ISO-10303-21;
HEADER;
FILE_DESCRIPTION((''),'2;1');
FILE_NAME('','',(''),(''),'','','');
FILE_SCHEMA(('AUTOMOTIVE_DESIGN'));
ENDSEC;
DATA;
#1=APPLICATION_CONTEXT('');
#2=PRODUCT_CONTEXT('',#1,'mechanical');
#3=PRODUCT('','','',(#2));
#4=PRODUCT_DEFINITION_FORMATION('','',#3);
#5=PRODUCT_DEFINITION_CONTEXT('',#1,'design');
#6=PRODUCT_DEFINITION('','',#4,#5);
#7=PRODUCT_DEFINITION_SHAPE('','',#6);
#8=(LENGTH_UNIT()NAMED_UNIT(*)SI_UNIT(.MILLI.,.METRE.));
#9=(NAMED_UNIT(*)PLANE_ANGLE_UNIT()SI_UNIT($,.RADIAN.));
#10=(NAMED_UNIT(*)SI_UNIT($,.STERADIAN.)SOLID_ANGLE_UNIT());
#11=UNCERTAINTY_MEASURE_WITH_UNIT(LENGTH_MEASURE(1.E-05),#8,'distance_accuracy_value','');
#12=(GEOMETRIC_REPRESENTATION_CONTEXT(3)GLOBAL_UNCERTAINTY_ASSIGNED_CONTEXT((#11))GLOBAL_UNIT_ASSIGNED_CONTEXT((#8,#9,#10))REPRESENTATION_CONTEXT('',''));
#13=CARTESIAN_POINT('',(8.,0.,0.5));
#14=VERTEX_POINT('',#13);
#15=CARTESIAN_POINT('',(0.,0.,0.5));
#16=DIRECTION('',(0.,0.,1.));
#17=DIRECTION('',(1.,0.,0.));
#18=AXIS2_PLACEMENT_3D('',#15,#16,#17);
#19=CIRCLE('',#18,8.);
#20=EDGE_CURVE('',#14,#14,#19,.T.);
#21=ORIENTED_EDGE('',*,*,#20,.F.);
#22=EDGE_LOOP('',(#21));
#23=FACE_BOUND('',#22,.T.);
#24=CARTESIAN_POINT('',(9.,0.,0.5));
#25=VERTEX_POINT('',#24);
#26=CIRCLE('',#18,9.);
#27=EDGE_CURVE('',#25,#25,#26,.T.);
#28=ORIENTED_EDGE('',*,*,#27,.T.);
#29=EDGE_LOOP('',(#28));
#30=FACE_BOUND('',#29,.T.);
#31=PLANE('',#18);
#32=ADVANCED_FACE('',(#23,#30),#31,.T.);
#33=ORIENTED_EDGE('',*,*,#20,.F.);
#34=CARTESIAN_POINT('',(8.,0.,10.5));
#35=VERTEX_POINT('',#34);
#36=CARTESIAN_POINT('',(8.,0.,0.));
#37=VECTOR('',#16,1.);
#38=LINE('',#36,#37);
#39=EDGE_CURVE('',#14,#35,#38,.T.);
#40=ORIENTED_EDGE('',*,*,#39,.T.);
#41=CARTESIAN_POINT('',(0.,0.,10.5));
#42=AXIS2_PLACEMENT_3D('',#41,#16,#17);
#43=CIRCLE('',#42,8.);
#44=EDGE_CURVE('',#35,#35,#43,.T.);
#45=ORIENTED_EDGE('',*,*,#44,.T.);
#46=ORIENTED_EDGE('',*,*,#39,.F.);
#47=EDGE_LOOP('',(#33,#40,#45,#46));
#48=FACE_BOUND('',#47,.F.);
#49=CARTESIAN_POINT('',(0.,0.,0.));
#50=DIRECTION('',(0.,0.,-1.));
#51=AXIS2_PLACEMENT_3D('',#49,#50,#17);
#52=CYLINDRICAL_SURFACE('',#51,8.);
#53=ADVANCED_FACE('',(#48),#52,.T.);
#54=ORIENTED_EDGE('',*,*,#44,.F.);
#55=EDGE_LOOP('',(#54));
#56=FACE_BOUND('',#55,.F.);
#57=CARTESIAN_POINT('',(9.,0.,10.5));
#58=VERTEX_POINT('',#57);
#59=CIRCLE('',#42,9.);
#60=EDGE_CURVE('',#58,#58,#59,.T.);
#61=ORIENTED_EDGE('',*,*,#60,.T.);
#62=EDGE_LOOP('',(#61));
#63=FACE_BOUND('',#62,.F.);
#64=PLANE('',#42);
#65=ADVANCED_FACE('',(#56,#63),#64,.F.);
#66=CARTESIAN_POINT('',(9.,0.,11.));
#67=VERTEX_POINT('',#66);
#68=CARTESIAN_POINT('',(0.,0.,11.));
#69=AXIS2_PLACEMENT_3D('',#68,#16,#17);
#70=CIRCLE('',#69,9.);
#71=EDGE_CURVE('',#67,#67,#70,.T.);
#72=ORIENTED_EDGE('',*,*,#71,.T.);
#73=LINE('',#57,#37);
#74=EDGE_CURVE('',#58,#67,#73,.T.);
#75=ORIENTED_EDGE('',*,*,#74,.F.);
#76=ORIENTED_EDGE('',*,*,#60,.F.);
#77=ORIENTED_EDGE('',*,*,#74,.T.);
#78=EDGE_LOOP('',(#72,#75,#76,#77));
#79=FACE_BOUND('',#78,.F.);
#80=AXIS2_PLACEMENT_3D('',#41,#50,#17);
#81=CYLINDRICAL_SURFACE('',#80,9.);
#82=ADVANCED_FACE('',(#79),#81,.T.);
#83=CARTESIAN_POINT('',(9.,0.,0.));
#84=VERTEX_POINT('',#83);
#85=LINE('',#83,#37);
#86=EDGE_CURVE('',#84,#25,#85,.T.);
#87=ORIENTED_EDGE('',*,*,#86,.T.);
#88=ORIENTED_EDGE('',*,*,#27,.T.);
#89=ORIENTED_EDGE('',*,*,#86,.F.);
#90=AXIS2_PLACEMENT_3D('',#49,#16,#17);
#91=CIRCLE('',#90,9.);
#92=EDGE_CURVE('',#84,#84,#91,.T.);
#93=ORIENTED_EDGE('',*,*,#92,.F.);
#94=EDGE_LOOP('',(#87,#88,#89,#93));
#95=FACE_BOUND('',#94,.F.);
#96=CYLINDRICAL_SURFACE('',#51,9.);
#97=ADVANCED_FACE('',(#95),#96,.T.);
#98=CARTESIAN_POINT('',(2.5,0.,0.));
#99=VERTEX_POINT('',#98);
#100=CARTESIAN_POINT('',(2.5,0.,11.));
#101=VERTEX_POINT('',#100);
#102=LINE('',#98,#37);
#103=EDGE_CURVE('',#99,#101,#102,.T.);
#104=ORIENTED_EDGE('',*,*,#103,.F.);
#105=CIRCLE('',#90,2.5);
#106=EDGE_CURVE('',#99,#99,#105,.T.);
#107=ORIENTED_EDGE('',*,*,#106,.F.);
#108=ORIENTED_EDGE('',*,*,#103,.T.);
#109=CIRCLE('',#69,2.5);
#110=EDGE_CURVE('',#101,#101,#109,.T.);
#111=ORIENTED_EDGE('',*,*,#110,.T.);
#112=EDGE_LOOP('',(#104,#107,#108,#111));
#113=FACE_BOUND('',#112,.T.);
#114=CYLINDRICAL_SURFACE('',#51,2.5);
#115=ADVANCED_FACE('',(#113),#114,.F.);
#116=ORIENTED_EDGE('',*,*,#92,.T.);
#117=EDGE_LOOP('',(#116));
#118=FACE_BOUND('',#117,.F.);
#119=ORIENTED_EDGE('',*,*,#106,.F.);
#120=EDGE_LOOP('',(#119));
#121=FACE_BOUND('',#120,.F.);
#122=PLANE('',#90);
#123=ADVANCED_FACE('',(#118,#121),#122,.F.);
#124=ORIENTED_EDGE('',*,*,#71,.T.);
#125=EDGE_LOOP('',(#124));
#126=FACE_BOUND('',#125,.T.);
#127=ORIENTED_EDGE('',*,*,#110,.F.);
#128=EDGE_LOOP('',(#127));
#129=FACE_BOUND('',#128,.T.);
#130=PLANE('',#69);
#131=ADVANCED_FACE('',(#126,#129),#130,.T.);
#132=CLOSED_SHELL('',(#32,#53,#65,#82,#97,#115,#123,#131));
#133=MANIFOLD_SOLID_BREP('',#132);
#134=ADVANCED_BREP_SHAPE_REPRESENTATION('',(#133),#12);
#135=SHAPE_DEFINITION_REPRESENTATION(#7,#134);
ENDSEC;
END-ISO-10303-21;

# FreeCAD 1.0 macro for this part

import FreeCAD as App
import Part
import Sketcher
Q = App.Units.Quantity

doc = App.newDocument("Part")
body = doc.addObject("PartDesign::Body", "Body")

sketch1 = body.newObject("Sketcher::SketchObject", "Sketch")
sketch1.AttachmentSupport = (doc.getObject("XY_Plane"), [""])
sketch1.MapMode = "FlatFace"
sketch1.addGeometry(Part.Circle(App.Vector(0, 0, 0), App.Vector(0, 0, 1), 8), False)
sketch1.addGeometry(Part.Circle(App.Vector(0, 0, 0), App.Vector(0, 0, 1), 2.5), False)
sketch1.addConstraint(Sketcher.Constraint("Coincident", 0, 3, -1, 1))
sketch1.addConstraint(Sketcher.Constraint("Coincident", 1, 3, -1, 1))
sketch1.addConstraint(Sketcher.Constraint("Diameter", 0, Q("16 mm")))
sketch1.addConstraint(Sketcher.Constraint("Diameter", 1, Q("5 mm")))
pad1 = body.newObject("PartDesign::Pad", "Pad")
pad1.Profile = sketch1
pad1.Length = 11

sketch2 = body.newObject("Sketcher::SketchObject", "Sketch001")
sketch2.AttachmentSupport = (doc.getObject("XY_Plane"), [""])
sketch2.MapMode = "FlatFace"
sketch2.addGeometry(Part.Circle(App.Vector(0, 0, 0), App.Vector(0, 0, 1), 9), False)
sketch2.addGeometry(Part.Circle(App.Vector(0, 0, 0), App.Vector(0, 0, 1), 8), False)
sketch2.addConstraint(Sketcher.Constraint("Coincident", 0, 3, -1, 1))
sketch2.addConstraint(Sketcher.Constraint("Coincident", 1, 3, -1, 1))
sketch2.addConstraint(Sketcher.Constraint("Diameter", 0, Q("18 mm")))
sketch2.addConstraint(Sketcher.Constraint("Diameter", 1, Q("16 mm")))
pad2 = body.newObject("PartDesign::Pad", "Pad001")
pad2.Profile = sketch2
pad2.Length = 0.5

sketch3 = body.newObject("Sketcher::SketchObject", "Sketch002")
sketch3.AttachmentSupport = (doc.getObject("XY_Plane"), [""])
sketch3.MapMode = "FlatFace"
sketch3.AttachmentOffset = App.Placement(App.Vector(0, 0, 10.5), App.Rotation())
sketch3.addGeometry(Part.Circle(App.Vector(0, 0, 0), App.Vector(0, 0, 1), 9), False)
sketch3.addGeometry(Part.Circle(App.Vector(0, 0, 0), App.Vector(0, 0, 1), 8), False)
sketch3.addConstraint(Sketcher.Constraint("Coincident", 0, 3, -1, 1))
sketch3.addConstraint(Sketcher.Constraint("Coincident", 1, 3, -1, 1))
sketch3.addConstraint(Sketcher.Constraint("Diameter", 0, Q("18 mm")))
sketch3.addConstraint(Sketcher.Constraint("Diameter", 1, Q("16 mm")))
pad3 = body.newObject("PartDesign::Pad", "Pad002")
pad3.Profile = sketch3
pad3.Length = 0.5

doc.recompute()
